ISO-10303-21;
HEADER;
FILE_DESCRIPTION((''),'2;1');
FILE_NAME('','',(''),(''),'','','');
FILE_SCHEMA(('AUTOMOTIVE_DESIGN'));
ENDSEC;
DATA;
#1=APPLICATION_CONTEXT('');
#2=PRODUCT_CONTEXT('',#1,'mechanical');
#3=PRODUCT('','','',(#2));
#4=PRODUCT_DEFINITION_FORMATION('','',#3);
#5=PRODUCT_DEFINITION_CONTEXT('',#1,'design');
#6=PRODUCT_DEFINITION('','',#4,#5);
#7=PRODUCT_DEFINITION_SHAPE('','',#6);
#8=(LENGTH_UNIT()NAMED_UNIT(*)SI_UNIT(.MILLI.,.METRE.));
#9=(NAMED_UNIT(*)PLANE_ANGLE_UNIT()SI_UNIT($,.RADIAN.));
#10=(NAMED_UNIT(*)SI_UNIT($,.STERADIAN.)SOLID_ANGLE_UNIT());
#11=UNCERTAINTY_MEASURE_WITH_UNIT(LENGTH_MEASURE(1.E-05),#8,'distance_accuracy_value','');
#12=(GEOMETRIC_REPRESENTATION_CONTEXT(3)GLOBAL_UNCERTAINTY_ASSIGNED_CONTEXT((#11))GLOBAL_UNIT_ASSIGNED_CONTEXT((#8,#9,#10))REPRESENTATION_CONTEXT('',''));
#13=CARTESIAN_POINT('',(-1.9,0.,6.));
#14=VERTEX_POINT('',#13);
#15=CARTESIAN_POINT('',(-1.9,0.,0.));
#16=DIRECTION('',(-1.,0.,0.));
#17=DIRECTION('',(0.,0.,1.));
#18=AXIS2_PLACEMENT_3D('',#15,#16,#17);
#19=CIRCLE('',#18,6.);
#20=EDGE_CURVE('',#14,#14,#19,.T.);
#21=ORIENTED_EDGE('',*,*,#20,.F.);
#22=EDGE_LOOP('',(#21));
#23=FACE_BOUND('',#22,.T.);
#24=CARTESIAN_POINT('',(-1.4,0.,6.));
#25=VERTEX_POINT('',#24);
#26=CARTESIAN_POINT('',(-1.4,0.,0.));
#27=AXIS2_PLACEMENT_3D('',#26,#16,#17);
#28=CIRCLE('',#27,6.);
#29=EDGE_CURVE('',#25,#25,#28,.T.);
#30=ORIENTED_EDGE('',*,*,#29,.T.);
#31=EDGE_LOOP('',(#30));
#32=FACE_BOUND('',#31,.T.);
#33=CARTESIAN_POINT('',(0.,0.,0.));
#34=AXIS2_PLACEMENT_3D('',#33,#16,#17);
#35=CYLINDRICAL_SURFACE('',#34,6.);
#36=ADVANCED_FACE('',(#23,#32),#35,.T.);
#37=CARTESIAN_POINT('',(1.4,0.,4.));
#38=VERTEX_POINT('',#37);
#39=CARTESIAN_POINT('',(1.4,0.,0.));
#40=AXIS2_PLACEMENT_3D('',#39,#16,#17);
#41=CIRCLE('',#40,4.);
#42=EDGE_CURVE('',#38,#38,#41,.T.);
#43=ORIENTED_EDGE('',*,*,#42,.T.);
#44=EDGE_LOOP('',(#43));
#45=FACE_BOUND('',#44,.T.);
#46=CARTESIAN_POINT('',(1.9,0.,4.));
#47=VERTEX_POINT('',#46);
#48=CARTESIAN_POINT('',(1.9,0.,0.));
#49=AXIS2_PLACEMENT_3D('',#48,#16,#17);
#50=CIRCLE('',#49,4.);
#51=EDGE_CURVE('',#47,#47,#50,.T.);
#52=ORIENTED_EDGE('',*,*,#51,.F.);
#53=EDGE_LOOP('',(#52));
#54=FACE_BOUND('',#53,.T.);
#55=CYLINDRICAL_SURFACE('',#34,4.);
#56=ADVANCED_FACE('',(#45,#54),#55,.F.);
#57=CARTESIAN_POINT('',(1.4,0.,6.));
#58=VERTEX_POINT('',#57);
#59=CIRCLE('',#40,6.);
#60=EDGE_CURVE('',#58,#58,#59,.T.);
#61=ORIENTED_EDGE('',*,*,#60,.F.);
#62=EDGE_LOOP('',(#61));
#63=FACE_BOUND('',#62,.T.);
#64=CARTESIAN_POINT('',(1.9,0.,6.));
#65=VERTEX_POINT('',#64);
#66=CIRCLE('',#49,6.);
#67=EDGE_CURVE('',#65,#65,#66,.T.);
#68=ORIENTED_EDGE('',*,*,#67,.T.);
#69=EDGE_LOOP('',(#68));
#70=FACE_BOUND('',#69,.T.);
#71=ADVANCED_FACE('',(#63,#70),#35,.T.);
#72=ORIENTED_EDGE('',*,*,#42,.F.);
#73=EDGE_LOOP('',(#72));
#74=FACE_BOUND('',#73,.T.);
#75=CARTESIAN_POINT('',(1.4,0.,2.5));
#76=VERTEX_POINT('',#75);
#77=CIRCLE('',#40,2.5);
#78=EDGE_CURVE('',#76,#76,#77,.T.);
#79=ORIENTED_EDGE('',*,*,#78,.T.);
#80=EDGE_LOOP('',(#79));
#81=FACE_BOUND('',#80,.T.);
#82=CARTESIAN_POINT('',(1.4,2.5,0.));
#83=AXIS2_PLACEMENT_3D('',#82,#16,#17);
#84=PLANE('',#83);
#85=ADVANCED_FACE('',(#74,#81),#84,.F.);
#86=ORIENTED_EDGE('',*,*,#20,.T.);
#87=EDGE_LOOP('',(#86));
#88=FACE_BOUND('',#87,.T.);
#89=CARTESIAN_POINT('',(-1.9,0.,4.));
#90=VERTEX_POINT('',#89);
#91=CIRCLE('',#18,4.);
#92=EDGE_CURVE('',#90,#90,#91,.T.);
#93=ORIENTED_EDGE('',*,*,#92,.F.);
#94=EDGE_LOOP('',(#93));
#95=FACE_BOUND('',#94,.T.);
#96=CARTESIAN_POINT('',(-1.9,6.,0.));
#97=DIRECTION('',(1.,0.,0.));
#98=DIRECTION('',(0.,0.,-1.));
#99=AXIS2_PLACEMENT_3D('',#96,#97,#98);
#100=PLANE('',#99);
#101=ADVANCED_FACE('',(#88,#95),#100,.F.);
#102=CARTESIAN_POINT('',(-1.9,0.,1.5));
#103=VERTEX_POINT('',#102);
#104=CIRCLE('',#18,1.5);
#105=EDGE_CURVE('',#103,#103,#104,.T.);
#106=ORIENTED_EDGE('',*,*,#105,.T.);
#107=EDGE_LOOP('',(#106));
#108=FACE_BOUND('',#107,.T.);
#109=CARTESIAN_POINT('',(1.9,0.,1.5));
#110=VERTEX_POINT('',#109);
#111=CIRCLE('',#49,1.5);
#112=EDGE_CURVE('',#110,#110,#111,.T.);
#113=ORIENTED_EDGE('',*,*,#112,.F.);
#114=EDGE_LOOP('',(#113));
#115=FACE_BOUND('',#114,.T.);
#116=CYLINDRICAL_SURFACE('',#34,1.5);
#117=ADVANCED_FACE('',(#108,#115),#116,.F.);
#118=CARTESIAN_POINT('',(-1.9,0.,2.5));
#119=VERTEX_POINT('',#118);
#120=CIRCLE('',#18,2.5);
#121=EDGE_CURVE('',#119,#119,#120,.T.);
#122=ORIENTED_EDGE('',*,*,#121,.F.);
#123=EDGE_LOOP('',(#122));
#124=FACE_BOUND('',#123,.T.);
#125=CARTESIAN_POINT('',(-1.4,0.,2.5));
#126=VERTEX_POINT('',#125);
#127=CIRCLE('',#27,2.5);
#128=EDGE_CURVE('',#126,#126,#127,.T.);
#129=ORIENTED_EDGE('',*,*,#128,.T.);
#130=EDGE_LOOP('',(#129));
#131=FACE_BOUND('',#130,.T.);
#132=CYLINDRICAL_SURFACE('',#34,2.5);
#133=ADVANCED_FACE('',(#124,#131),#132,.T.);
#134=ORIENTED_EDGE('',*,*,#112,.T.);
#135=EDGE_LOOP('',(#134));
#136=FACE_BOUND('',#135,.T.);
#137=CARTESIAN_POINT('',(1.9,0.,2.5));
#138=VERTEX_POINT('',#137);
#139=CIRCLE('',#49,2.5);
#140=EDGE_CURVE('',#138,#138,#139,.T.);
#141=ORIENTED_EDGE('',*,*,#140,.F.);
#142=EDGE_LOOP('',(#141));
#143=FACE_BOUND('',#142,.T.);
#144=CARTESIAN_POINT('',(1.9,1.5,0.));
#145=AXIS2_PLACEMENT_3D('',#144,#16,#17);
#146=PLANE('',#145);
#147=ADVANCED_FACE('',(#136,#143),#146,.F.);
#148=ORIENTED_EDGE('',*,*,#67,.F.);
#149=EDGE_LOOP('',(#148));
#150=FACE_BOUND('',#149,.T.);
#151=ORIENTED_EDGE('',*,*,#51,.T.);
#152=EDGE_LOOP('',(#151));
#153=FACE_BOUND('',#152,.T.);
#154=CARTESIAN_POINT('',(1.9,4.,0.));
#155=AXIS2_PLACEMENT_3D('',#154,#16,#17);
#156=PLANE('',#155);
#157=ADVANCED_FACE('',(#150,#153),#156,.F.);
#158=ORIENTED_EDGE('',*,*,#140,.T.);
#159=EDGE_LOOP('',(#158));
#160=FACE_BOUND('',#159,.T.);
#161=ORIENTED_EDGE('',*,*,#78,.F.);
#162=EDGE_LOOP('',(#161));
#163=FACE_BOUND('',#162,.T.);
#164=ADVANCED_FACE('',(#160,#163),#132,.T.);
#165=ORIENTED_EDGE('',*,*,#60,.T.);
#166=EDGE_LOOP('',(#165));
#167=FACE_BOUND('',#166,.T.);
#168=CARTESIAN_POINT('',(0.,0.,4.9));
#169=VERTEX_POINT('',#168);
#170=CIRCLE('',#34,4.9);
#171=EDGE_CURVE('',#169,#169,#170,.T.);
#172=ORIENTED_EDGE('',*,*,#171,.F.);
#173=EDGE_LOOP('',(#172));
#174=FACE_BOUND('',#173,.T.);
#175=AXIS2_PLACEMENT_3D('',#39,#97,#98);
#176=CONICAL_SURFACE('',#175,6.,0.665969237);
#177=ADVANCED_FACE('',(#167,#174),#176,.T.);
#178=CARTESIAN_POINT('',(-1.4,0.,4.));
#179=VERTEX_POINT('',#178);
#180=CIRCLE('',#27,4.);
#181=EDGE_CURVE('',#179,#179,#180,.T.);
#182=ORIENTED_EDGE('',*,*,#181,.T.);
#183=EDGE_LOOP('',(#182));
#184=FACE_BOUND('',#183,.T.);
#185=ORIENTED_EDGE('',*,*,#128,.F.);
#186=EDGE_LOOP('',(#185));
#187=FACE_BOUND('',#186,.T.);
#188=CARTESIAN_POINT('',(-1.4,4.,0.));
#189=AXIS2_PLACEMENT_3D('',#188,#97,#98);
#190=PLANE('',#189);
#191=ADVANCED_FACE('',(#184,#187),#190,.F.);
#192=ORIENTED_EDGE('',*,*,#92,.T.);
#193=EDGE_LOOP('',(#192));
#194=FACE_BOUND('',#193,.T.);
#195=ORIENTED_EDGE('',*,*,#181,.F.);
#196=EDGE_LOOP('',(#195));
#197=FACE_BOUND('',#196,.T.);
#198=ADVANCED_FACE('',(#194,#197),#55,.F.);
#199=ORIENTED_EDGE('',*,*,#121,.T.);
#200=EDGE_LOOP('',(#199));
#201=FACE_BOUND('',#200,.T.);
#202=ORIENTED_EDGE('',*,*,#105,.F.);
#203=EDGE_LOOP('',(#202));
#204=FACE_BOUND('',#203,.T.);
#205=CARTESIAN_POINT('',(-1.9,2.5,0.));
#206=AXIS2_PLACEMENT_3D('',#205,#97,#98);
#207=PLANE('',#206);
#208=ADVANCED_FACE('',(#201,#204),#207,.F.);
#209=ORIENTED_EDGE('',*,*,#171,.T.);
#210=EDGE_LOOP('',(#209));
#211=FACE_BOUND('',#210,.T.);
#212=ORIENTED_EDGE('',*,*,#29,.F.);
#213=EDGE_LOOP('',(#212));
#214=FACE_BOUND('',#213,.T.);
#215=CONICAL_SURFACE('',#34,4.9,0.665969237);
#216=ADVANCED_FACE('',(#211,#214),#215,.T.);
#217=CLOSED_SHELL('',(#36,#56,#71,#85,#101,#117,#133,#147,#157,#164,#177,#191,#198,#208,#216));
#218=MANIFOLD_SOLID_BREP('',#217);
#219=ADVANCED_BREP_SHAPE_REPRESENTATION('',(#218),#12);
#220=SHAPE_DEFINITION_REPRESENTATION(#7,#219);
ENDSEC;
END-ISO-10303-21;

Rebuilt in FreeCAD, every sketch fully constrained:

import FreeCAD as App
import Part
import Sketcher
Q = App.Units.Quantity


def add_polygon(sketch, points):
    """Adds a closed chain of lines whose ends are joined by coincident constraints."""
    first, n = sketch.GeometryCount, len(points)
    for a, b in zip(points, points[1:] + points[:1]):
        sketch.addGeometry(Part.LineSegment(App.Vector(*a, 0), App.Vector(*b, 0)), False)
    for i in range(n):
        sketch.addConstraint(Sketcher.Constraint("Coincident", first + i, 2, first + (i + 1) % n, 1))

doc = App.newDocument("Part")
body = doc.addObject("PartDesign::Body", "Body")

# Sketch on XY plane
sketch1 = body.newObject("Sketcher::SketchObject", "Sketch")
sketch1.AttachmentSupport = (doc.getObject("XY_Plane"), [""])
sketch1.MapMode = "FlatFace"
add_polygon(sketch1, [(-1.9, 1.5), (1.9, 1.5), (1.9, 2.5), (1.4, 2.5), (1.4, 4), (1.9, 4), (1.9, 6), (1.4, 6), (0, 4.9), (-1.4, 6), (-1.9, 6), (-1.9, 4), (-1.4, 4), (-1.4, 2.5), (-1.9, 2.5)])  # lines 0-14
sketch1.addConstraint(Sketcher.Constraint("Horizontal", 0))
sketch1.addConstraint(Sketcher.Constraint("Vertical", 1))
sketch1.addConstraint(Sketcher.Constraint("Horizontal", 2))
sketch1.addConstraint(Sketcher.Constraint("Vertical", 3))
sketch1.addConstraint(Sketcher.Constraint("Horizontal", 4))
sketch1.addConstraint(Sketcher.Constraint("Vertical", 5))
sketch1.addConstraint(Sketcher.Constraint("Horizontal", 6))
sketch1.addConstraint(Sketcher.Constraint("Horizontal", 9))
sketch1.addConstraint(Sketcher.Constraint("Vertical", 10))
sketch1.addConstraint(Sketcher.Constraint("Horizontal", 11))
sketch1.addConstraint(Sketcher.Constraint("Vertical", 12))
sketch1.addConstraint(Sketcher.Constraint("Horizontal", 13))
sketch1.addConstraint(Sketcher.Constraint("Vertical", 14))
sketch1.addConstraint(Sketcher.Constraint("Symmetric", 6, 2, 8, 2, -2))
sketch1.addConstraint(Sketcher.Constraint("Symmetric", 4, 2, 10, 2, -2))
sketch1.addConstraint(Sketcher.Constraint("Symmetric", 2, 2, 12, 2, -2))
sketch1.addConstraint(Sketcher.Constraint("PointOnObject", 7, 2, -2))
sketch1.addConstraint(Sketcher.Constraint("Vertical", 1, 2, 4, 2))
sketch1.addConstraint(Sketcher.Constraint("Vertical", 3, 2, 6, 2))
sketch1.addConstraint(Sketcher.Constraint("Vertical", 10, 2, 13, 2))
sketch1.addConstraint(Sketcher.Constraint("DistanceY", 1, 1, 1, 2, Q("1 mm")))
sketch1.addConstraint(Sketcher.Constraint("DistanceY", 5, 1, 5, 2, Q("2 mm")))
sketch1.addConstraint(Sketcher.Constraint("DistanceX", 0, 1, 0, 2, Q("3.8 mm")))
sketch1.addConstraint(Sketcher.Constraint("DistanceX", 2, 2, 2, 1, Q("0.5 mm")))
sketch1.addConstraint(Sketcher.Constraint("DistanceY", 3, 1, 3, 2, Q("1.5 mm")))
sketch1.addConstraint(Sketcher.Constraint("DistanceY", -1, 1, 3, 2, Q("4 mm")))
sketch1.addConstraint(Sketcher.Constraint("DistanceY", -1, 1, 7, 2, Q("4.9 mm")))
revolution = body.newObject("PartDesign::Revolution", "Revolution")
revolution.Profile = sketch1
revolution.ReferenceAxis = (sketch1, ["H_Axis"])
revolution.Angle = 360

doc.recompute()
